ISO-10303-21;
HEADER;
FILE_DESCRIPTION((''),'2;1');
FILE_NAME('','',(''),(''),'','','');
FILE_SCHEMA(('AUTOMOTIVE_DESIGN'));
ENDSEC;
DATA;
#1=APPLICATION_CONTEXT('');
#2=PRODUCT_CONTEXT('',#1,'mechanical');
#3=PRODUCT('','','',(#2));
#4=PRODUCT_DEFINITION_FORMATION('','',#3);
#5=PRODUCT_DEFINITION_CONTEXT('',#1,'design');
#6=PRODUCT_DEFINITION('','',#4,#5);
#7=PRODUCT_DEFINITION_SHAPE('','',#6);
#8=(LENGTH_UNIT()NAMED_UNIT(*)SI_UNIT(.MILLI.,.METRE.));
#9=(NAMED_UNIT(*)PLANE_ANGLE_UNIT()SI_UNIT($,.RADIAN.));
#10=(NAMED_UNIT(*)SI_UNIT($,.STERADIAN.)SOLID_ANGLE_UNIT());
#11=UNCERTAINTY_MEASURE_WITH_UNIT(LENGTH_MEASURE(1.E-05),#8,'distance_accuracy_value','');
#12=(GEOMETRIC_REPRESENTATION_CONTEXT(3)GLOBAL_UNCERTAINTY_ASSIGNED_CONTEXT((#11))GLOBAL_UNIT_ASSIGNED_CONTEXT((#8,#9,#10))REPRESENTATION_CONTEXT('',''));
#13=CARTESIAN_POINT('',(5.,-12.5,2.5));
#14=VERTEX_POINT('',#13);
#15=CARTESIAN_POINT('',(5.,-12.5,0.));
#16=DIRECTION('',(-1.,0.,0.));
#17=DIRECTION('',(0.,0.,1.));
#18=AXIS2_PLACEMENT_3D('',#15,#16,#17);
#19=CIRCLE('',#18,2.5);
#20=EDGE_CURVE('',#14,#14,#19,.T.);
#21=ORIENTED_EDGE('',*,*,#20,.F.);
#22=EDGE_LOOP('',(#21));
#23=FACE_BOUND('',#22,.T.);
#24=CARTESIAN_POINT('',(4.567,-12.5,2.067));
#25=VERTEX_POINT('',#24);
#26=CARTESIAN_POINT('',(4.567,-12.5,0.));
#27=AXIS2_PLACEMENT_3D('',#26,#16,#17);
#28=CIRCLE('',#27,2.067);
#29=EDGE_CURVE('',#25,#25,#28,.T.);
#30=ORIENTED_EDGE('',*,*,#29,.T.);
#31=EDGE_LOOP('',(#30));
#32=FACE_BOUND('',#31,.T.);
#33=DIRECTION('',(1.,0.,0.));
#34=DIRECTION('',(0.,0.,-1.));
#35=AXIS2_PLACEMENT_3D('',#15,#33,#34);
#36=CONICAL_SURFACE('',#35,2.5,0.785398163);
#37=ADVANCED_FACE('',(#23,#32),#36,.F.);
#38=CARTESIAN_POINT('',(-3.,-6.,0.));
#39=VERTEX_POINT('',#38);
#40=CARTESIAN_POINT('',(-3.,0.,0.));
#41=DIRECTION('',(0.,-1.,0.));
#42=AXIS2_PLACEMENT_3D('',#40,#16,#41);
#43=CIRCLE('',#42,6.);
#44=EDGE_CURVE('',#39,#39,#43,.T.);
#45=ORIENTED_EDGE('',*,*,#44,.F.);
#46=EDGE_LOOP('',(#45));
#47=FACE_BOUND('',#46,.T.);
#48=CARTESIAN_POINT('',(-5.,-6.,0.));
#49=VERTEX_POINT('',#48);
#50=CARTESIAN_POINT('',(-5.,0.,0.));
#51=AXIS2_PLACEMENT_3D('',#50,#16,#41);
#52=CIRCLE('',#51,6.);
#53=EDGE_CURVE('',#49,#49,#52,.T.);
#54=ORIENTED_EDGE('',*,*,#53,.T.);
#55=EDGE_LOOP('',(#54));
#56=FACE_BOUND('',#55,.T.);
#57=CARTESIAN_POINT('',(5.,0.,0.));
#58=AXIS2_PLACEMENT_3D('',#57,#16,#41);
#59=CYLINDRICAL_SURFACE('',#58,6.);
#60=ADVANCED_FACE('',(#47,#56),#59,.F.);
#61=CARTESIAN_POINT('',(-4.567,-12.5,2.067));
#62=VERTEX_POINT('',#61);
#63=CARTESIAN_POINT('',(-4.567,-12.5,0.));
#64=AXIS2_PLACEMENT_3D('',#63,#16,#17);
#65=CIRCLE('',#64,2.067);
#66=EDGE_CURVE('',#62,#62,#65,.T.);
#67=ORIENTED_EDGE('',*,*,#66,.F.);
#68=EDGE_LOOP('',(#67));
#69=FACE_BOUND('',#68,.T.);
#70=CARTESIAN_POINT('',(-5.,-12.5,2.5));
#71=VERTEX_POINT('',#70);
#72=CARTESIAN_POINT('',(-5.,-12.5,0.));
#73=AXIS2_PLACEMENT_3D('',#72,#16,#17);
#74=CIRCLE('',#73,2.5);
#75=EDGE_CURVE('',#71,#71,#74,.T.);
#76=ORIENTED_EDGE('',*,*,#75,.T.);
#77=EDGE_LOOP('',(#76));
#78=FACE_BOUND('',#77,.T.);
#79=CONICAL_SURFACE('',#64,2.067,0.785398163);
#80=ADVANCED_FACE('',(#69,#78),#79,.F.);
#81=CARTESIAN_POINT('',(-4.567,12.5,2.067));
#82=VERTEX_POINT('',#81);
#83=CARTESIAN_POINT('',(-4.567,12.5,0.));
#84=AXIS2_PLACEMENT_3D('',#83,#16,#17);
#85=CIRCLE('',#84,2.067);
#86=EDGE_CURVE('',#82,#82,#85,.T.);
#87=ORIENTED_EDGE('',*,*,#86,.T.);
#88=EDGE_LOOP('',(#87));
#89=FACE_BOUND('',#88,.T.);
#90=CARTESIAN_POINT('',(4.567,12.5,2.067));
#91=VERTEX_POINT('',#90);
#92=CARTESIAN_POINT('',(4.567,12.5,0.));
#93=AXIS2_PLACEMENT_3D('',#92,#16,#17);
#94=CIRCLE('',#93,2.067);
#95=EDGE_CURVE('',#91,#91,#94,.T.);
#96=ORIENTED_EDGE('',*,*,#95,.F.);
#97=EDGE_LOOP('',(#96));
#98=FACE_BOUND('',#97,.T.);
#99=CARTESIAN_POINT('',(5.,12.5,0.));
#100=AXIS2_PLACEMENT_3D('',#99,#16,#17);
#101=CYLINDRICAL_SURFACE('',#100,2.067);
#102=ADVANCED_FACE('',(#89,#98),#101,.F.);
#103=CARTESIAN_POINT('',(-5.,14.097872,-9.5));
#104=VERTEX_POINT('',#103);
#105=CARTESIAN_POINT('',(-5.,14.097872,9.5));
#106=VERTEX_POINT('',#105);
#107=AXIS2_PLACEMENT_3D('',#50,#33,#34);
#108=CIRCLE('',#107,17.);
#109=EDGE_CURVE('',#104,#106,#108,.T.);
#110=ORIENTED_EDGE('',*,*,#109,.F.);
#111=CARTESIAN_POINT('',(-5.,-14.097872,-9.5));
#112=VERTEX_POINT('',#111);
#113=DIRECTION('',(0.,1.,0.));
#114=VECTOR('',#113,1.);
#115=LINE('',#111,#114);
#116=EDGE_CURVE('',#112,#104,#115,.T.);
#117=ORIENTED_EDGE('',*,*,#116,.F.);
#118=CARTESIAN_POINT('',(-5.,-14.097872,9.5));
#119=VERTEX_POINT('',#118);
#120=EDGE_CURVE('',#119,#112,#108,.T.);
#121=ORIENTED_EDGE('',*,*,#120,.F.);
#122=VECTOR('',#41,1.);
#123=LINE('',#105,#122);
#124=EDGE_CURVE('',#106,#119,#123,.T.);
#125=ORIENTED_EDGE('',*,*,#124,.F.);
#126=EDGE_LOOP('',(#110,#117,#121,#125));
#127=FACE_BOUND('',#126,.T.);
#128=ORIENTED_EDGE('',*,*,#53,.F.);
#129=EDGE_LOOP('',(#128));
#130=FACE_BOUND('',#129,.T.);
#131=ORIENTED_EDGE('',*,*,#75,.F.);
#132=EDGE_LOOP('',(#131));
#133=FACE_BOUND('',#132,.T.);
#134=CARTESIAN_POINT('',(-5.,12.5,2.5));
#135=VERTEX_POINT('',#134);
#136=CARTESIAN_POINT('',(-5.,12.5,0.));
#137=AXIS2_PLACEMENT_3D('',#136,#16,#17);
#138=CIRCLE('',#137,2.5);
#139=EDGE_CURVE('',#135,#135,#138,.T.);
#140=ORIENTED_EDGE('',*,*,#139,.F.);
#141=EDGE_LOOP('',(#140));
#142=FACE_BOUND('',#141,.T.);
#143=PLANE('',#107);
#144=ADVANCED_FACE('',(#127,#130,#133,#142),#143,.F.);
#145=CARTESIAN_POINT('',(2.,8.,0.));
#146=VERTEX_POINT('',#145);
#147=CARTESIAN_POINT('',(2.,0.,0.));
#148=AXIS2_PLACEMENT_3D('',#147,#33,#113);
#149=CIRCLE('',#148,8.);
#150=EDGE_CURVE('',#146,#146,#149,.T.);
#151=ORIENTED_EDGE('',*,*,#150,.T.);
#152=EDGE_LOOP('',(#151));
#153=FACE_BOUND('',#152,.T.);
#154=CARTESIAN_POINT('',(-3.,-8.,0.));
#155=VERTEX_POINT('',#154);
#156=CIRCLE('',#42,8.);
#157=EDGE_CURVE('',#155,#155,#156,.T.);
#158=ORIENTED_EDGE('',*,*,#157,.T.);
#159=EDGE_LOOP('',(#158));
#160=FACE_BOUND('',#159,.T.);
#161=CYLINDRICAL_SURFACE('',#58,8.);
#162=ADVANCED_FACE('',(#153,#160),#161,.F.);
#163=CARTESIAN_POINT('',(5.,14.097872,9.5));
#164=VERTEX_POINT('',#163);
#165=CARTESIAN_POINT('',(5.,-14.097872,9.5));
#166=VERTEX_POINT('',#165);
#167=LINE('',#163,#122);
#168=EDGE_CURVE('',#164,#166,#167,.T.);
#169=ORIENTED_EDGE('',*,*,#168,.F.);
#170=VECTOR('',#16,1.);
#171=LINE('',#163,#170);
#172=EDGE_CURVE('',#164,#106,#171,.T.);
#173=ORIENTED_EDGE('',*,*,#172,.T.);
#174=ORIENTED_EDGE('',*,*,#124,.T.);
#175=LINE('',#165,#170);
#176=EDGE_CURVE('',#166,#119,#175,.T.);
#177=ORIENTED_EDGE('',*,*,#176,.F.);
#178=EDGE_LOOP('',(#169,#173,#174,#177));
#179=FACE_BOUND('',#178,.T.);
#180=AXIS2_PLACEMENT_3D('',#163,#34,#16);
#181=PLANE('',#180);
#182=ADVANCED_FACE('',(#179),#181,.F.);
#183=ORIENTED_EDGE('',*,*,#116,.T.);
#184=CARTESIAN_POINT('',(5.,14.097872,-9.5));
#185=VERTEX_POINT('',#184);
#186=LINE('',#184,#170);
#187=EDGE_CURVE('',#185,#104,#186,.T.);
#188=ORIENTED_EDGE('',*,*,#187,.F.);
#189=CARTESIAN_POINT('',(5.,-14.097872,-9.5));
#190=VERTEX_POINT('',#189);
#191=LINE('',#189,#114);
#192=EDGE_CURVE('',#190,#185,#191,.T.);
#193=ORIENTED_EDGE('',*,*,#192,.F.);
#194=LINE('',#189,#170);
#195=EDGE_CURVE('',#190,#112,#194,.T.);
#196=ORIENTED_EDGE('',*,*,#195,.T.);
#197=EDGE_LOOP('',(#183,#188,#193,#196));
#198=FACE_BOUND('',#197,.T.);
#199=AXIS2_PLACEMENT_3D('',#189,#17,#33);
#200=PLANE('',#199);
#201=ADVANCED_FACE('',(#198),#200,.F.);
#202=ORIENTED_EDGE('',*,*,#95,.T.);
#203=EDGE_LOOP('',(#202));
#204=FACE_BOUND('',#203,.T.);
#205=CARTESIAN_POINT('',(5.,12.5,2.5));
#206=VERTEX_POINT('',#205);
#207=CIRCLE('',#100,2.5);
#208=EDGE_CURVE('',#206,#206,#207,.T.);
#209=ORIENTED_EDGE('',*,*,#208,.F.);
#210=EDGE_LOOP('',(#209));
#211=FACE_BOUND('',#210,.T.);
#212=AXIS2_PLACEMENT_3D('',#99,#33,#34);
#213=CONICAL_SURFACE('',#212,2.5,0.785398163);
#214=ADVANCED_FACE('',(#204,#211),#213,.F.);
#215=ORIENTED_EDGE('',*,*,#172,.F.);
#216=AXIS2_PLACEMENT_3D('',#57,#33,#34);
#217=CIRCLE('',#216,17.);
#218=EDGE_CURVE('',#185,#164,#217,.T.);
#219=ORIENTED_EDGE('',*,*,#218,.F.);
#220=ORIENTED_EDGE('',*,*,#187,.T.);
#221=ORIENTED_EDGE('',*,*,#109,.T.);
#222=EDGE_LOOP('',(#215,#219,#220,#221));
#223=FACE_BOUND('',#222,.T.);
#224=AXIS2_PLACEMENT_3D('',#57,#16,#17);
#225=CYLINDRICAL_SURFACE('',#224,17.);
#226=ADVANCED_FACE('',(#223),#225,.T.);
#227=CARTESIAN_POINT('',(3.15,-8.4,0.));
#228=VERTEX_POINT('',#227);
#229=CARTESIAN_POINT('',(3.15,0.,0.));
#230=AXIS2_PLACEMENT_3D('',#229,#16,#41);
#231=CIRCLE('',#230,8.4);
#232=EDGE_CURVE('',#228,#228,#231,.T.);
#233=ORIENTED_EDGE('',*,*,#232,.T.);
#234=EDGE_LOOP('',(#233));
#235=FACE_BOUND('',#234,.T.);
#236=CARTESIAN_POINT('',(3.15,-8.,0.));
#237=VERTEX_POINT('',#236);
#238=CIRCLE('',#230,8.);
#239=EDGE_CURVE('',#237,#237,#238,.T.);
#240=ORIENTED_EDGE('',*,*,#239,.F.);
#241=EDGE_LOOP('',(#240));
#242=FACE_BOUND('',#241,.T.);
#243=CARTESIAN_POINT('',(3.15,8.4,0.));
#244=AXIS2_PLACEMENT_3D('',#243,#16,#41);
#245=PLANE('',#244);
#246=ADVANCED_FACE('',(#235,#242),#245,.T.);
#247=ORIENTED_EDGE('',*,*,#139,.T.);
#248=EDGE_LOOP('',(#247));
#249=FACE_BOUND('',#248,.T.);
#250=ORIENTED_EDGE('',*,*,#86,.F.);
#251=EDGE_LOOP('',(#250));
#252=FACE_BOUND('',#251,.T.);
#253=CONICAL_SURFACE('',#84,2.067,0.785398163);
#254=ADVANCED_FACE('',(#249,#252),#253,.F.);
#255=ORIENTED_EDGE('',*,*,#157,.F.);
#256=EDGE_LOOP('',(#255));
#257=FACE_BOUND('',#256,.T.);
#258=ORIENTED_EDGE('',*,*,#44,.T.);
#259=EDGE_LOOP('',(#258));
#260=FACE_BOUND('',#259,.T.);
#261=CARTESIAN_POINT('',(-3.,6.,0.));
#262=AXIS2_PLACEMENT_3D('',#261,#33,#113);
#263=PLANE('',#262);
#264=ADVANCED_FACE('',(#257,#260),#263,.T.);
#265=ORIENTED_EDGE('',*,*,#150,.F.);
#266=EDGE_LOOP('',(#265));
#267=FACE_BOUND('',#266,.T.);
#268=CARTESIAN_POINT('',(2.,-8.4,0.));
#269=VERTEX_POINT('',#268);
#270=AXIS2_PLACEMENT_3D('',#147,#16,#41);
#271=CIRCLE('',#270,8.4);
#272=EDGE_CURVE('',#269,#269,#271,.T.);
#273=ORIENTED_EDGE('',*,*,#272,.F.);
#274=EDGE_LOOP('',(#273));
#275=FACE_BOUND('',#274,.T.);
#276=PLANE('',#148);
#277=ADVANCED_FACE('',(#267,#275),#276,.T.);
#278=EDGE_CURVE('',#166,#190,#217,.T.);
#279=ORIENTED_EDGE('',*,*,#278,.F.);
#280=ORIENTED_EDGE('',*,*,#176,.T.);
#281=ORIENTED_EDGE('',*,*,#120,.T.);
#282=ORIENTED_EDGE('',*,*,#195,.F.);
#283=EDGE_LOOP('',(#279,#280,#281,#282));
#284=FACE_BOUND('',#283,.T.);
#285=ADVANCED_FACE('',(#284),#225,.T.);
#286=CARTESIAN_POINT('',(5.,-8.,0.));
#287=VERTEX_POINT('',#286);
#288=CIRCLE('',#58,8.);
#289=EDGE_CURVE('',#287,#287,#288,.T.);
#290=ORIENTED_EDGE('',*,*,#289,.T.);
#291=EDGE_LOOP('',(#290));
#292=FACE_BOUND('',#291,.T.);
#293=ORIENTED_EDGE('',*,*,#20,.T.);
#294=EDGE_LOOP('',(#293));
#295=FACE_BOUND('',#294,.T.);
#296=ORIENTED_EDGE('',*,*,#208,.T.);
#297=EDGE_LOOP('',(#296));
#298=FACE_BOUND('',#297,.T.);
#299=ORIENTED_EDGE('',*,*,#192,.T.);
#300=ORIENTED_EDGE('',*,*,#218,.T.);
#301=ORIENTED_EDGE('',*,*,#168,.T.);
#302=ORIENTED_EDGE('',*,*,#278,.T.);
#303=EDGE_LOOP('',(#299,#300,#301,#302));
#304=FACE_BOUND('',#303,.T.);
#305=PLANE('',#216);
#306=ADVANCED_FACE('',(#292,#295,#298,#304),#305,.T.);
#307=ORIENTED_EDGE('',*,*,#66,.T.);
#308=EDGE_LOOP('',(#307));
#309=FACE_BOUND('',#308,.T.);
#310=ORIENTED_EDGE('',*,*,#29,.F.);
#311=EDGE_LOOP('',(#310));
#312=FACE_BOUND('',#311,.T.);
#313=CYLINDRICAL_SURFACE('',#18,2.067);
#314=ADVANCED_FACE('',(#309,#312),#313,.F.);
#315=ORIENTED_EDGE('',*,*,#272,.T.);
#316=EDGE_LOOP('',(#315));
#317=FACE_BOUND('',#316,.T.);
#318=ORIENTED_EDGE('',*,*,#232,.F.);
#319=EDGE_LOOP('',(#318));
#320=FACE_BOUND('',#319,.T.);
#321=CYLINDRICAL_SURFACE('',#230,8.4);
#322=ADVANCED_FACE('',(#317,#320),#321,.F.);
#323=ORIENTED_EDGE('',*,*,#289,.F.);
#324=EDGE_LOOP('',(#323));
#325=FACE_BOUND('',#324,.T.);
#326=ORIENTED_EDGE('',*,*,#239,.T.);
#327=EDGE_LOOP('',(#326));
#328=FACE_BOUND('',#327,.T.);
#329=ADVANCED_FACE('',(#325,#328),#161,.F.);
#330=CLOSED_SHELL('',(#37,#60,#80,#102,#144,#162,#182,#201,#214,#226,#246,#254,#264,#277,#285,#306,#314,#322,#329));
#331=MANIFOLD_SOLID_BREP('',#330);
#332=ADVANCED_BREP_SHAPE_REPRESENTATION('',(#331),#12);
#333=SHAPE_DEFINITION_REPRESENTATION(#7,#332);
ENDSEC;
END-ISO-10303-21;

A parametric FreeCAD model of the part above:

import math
import FreeCAD as App
import Part
import Sketcher

doc = App.newDocument("Part")
body = doc.addObject("PartDesign::Body", "Body")

# Sketch on YZ plane
sketch1 = doc.addObject("Sketcher::SketchObject", "Sketch")
body.addObject(sketch1)
sketch1.AttachmentSupport = (doc.YZ_Plane, [""])
sketch1.MapMode = "FlatFace"
sketch1.addGeometry([
    Part.LineSegment(App.Vector(-14, -10, 0), App.Vector(14, -10, 0)),
    Part.ArcOfCircle(Part.Circle(App.Vector(0, 0, 0), App.Vector(0, 0, 1), 17), math.radians(-34), math.radians(34)),
    Part.LineSegment(App.Vector(14, 10, 0), App.Vector(-14, 10, 0)),
    Part.ArcOfCircle(Part.Circle(App.Vector(0, 0, 0), App.Vector(0, 0, 1), 17), math.radians(146), math.radians(214)),
], False)
sketch1.addConstraint([
    Sketcher.Constraint("Coincident", 0, 2, 1, 1),
    Sketcher.Constraint("Coincident", 1, 2, 2, 1),
    Sketcher.Constraint("Coincident", 2, 2, 3, 1),
    Sketcher.Constraint("Coincident", 3, 2, 0, 1),
    Sketcher.Constraint("Horizontal", 0),
    Sketcher.Constraint("Horizontal", 2),
    Sketcher.Constraint("Coincident", 1, 3, -1, 1),
    Sketcher.Constraint("Coincident", 3, 3, -1, 1),
    Sketcher.Constraint("Equal", 1, 3),
    Sketcher.Constraint("Vertical", 0, 2, 1, 2),
    Sketcher.Constraint("Radius", 1, 17.0),
    Sketcher.Constraint("DistanceY", 0, 2, 1, 2, 19.0),
])
pad1 = doc.addObject("PartDesign::Pad", "Pad")
body.addObject(pad1)
pad1.Profile = sketch1
pad1.Type = "TwoLengths"
pad1.Length = 5
pad1.Length2 = 5

# Sketch on XY plane
sketch2 = doc.addObject("Sketcher::SketchObject", "Sketch001")
body.addObject(sketch2)
sketch2.AttachmentSupport = (doc.XY_Plane, [""])
sketch2.MapMode = "FlatFace"
sketch2.addGeometry([
    Part.LineSegment(App.Vector(-5, 6, 0), App.Vector(-5, 0, 0)),  # 0
    Part.LineSegment(App.Vector(-5, 0, 0), App.Vector(5, 0, 0)),  # 1
    Part.LineSegment(App.Vector(5, 0, 0), App.Vector(5, 8, 0)),  # 2
    Part.LineSegment(App.Vector(5, 8, 0), App.Vector(-3, 8, 0)),  # 3
    Part.LineSegment(App.Vector(-3, 8, 0), App.Vector(-3, 6, 0)),  # 4
    Part.LineSegment(App.Vector(-3, 6, 0), App.Vector(-5, 6, 0)),  # 5
], False)
sketch2.addConstraint([
    Sketcher.Constraint("Coincident", 0, 2, 1, 1),
    Sketcher.Constraint("Coincident", 1, 2, 2, 1),
    Sketcher.Constraint("Coincident", 2, 2, 3, 1),
    Sketcher.Constraint("Coincident", 3, 2, 4, 1),
    Sketcher.Constraint("Coincident", 4, 2, 5, 1),
    Sketcher.Constraint("Coincident", 5, 2, 0, 1),
    Sketcher.Constraint("Vertical", 0),
    Sketcher.Constraint("Horizontal", 1),
    Sketcher.Constraint("Vertical", 2),
    Sketcher.Constraint("Horizontal", 3),
    Sketcher.Constraint("Vertical", 4),
    Sketcher.Constraint("Horizontal", 5),
    Sketcher.Constraint("Symmetric", 0, 2, 1, 2, -1, 1),
    Sketcher.Constraint("Equal", 3, 2),
    Sketcher.Constraint("Equal", 5, 4),
    Sketcher.Constraint("DistanceX", 1, 1, 1, 2, 10.0),
    Sketcher.Constraint("DistanceX", 3, 2, 3, 1, 8.0),
])
groove = doc.addObject("PartDesign::Groove", "Groove")
body.addObject(groove)
groove.Profile = sketch2
groove.ReferenceAxis = (sketch2, ["H_Axis"])
groove.Angle = 360

# Sketch on XY plane
sketch3 = doc.addObject("Sketcher::SketchObject", "Sketch002")
body.addObject(sketch3)
sketch3.AttachmentSupport = (doc.XY_Plane, [""])
sketch3.MapMode = "FlatFace"
sketch3.addGeometry([
    Part.LineSegment(App.Vector(2, 8.4, 0), App.Vector(2, 0, 0)),
    Part.LineSegment(App.Vector(2, 0, 0), App.Vector(3.1, 0, 0)),
    Part.LineSegment(App.Vector(3.1, 0, 0), App.Vector(3.1, 8.4, 0)),
    Part.LineSegment(App.Vector(3.1, 8.4, 0), App.Vector(2, 8.4, 0)),
], False)
sketch3.addConstraint([
    Sketcher.Constraint("Coincident", 0, 2, 1, 1),
    Sketcher.Constraint("Coincident", 1, 2, 2, 1),
    Sketcher.Constraint("Coincident", 2, 2, 3, 1),
    Sketcher.Constraint("Coincident", 3, 2, 0, 1),
    Sketcher.Constraint("Vertical", 0),
    Sketcher.Constraint("Horizontal", 1),
    Sketcher.Constraint("Vertical", 2),
    Sketcher.Constraint("Horizontal", 3),
    Sketcher.Constraint("PointOnObject", 0, 2, -1),
    Sketcher.Constraint("DistanceY", 0, 2, 0, 1, 8.4),
    Sketcher.Constraint("DistanceX", -1, 1, 0, 2, 2.0),
    Sketcher.Constraint("DistanceX", 1, 1, 1, 2, 1.15),
])
groove2 = doc.addObject("PartDesign::Groove", "Groove001")
body.addObject(groove2)
groove2.Profile = sketch3
groove2.ReferenceAxis = (sketch3, ["H_Axis"])
groove2.Angle = 360

# Sketch on XY plane
sketch4 = doc.addObject("Sketcher::SketchObject", "Sketch003")
body.addObject(sketch4)
sketch4.AttachmentSupport = (doc.XY_Plane, [""])
sketch4.MapMode = "FlatFace"
sketch4.addGeometry([
    Part.LineSegment(App.Vector(-5, -10, 0), App.Vector(-5, -12.5, 0)),  # 0
    Part.LineSegment(App.Vector(-5, -12.5, 0), App.Vector(5, -12.5, 0)),  # 1
    Part.LineSegment(App.Vector(5, -12.5, 0), App.Vector(5, -10, 0)),  # 2
    Part.LineSegment(App.Vector(5, -10, 0), App.Vector(4.6, -10.4, 0)),  # 3
    Part.LineSegment(App.Vector(4.6, -10.4, 0), App.Vector(-4.6, -10.4, 0)),  # 4
    Part.LineSegment(App.Vector(-4.6, -10.4, 0), App.Vector(-5, -10, 0)),  # 5
], False)
sketch4.addGeometry(Part.LineSegment(App.Vector(5, -12.5, 0), App.Vector(-5, -12.5, 0)), True)  # axis
sketch4.addConstraint([
    Sketcher.Constraint("Coincident", 0, 2, 1, 1),
    Sketcher.Constraint("Coincident", 1, 2, 2, 1),
    Sketcher.Constraint("Coincident", 2, 2, 3, 1),
    Sketcher.Constraint("Coincident", 3, 2, 4, 1),
    Sketcher.Constraint("Coincident", 4, 2, 5, 1),
    Sketcher.Constraint("Coincident", 5, 2, 0, 1),
    Sketcher.Constraint("Vertical", 0),
    Sketcher.Constraint("Horizontal", 1),
    Sketcher.Constraint("Vertical", 2),
    Sketcher.Constraint("Horizontal", 4),
    Sketcher.Constraint("Horizontal", 6),
    Sketcher.Constraint("Coincident", 6, 1, 1, 2),
    Sketcher.Constraint("Symmetric", 2, 2, 5, 2, -2),
    Sketcher.Constraint("Perpendicular", 3, 5),
    Sketcher.Constraint("Vertical", 5, 2, 6, 2),
    Sketcher.Constraint("Equal", 3, 5),
    Sketcher.Constraint("DistanceX", 1, 1, 1, 2, 10.0),
    Sketcher.Constraint("DistanceY", 0, 2, 0, 1, 2.5),
    Sketcher.Constraint("DistanceY", 2, 2, -1, 1, 10.0),
    Sketcher.Constraint("DistanceX", 4, 2, 4, 1, 9.134),
])
groove3 = doc.addObject("PartDesign::Groove", "Groove002")
body.addObject(groove3)
groove3.Profile = sketch4
groove3.ReferenceAxis = (sketch4, ["Axis0"])
groove3.Angle = 360

# Sketch on XY plane
sketch5 = doc.addObject("Sketcher::SketchObject", "Sketch004")
body.addObject(sketch5)
sketch5.AttachmentSupport = (doc.XY_Plane, [""])
sketch5.MapMode = "FlatFace"
sketch5.addGeometry([
    Part.LineSegment(App.Vector(-5, 15, 0), App.Vector(-5, 12.5, 0)),  # 0
    Part.LineSegment(App.Vector(-5, 12.5, 0), App.Vector(5, 12.5, 0)),  # 1
    Part.LineSegment(App.Vector(5, 12.5, 0), App.Vector(5, 15, 0)),  # 2
    Part.LineSegment(App.Vector(5, 15, 0), App.Vector(4.6, 14.6, 0)),  # 3
    Part.LineSegment(App.Vector(4.6, 14.6, 0), App.Vector(-4.6, 14.6, 0)),  # 4
    Part.LineSegment(App.Vector(-4.6, 14.6, 0), App.Vector(-5, 15, 0)),  # 5
], False)
sketch5.addGeometry(Part.LineSegment(App.Vector(5, 12.5, 0), App.Vector(-5, 12.5, 0)), True)  # axis
sketch5.addConstraint([
    Sketcher.Constraint("Coincident", 0, 2, 1, 1),
    Sketcher.Constraint("Coincident", 1, 2, 2, 1),
    Sketcher.Constraint("Coincident", 2, 2, 3, 1),
    Sketcher.Constraint("Coincident", 3, 2, 4, 1),
    Sketcher.Constraint("Coincident", 4, 2, 5, 1),
    Sketcher.Constraint("Coincident", 5, 2, 0, 1),
    Sketcher.Constraint("Vertical", 0),
    Sketcher.Constraint("Horizontal", 1),
    Sketcher.Constraint("Vertical", 2),
    Sketcher.Constraint("Horizontal", 4),
    Sketcher.Constraint("Horizontal", 6),
    Sketcher.Constraint("Coincident", 6, 1, 1, 2),
    Sketcher.Constraint("Symmetric", 2, 2, 5, 2, -2),
    Sketcher.Constraint("Perpendicular", 3, 5),
    Sketcher.Constraint("Vertical", 5, 2, 6, 2),
    Sketcher.Constraint("Equal", 3, 5),
    Sketcher.Constraint("DistanceX", 1, 1, 1, 2, 10.0),
    Sketcher.Constraint("DistanceY", 0, 2, 0, 1, 2.5),
    Sketcher.Constraint("DistanceY", -1, 1, 2, 2, 15.0),
    Sketcher.Constraint("DistanceX", 4, 2, 4, 1, 9.134),
])
groove4 = doc.addObject("PartDesign::Groove", "Groove003")
body.addObject(groove4)
groove4.Profile = sketch5
groove4.ReferenceAxis = (sketch5, ["Axis0"])
groove4.Angle = 360

doc.recompute()
